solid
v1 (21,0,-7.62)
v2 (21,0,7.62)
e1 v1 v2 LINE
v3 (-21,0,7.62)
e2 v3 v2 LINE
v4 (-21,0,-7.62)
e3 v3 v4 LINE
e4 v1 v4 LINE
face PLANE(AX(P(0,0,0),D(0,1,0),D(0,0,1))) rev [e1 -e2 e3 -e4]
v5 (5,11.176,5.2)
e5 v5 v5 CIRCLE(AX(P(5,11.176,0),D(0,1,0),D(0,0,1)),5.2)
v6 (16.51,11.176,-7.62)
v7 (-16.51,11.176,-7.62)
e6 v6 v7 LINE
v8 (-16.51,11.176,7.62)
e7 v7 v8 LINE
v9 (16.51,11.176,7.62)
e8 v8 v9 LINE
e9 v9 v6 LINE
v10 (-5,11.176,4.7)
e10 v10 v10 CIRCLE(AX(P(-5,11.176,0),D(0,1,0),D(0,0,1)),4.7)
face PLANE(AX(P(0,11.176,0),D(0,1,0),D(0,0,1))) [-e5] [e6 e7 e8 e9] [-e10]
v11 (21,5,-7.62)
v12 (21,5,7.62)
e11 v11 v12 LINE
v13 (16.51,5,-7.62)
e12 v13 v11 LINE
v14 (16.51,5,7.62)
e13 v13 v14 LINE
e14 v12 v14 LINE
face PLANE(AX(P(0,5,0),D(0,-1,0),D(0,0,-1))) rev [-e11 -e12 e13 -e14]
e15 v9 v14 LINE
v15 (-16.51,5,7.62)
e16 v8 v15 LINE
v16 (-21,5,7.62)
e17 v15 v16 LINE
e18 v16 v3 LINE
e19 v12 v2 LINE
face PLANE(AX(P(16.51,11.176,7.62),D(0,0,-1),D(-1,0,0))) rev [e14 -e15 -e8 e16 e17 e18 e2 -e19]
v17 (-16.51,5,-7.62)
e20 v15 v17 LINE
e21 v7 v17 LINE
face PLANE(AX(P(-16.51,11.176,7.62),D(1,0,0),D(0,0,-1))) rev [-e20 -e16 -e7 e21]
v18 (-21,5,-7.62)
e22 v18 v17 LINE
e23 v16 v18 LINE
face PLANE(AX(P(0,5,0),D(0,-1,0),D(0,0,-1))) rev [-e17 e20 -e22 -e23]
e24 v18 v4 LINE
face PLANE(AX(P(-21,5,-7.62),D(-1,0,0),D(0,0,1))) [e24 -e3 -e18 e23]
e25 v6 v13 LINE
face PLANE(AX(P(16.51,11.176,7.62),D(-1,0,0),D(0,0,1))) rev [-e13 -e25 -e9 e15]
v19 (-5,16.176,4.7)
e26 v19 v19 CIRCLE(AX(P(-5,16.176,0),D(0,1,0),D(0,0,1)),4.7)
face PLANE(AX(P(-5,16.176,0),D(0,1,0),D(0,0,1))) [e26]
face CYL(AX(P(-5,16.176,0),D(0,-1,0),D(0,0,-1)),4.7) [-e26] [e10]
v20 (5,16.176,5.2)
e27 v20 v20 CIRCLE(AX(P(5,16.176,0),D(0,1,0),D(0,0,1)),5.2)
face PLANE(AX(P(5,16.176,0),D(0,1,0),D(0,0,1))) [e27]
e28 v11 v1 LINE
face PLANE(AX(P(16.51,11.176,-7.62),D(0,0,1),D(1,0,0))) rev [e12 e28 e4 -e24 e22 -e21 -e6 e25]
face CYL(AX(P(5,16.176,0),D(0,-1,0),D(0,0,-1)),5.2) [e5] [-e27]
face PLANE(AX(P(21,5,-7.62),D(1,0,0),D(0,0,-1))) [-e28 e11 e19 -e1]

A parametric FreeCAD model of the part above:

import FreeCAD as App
import Part
import Sketcher
from FreeCAD import Vector
Q = App.Units.Quantity


def add_polygon(sketch, points):
    """Adds a closed chain of lines whose ends are joined by coincident constraints."""
    first, n = sketch.GeometryCount, len(points)
    for a, b in zip(points, points[1:] + points[:1]):
        sketch.addGeometry(Part.LineSegment(App.Vector(*a, 0), App.Vector(*b, 0)), False)
    for i in range(n):
        sketch.addConstraint(Sketcher.Constraint("Coincident", first + i, 2, first + (i + 1) % n, 1))

doc = App.newDocument("Part")
params = doc.addObject("Spreadsheet::Sheet", "Params")
for row, (alias, value) in enumerate([
    ("sketch1_width", "33.02 mm"),
    ("sketch1_height", "15.24 mm"),
    ("pad1_length", "11.176 mm"),
    ("sketch2_diameter", "9.4 mm"),
    ("sketch2_diameter2", "10.4 mm"),
    ("pad2_length", "5 mm"),
    ("sketch3_width", "42 mm"),
    ("sketch3_height", "15.24 mm"),
    ("pad3_length", "5 mm"),
], start=1):
    params.set(f"A{row}", alias)
    params.set(f"B{row}", "=" + value)
    params.setAlias(f"B{row}", alias)

body = doc.addObject("PartDesign::Body", "Body")

sketch1 = body.newObject("Sketcher::SketchObject", "Sketch")
sketch1.AttachmentSupport = (doc.getObject("XZ_Plane"), [""])
sketch1.MapMode = "FlatFace"
add_polygon(sketch1, [(-16.51, -7.62), (-16.51, 7.62), (16.51, 7.62), (16.51, -7.62)])
sketch1.addConstraint([
    Sketcher.Constraint("Vertical", 0),
    Sketcher.Constraint("Horizontal", 1),
    Sketcher.Constraint("Vertical", 2),
    Sketcher.Constraint("Horizontal", 3),
    Sketcher.Constraint("Symmetric", 0, 2, 2, 2, -1, 1),
    Sketcher.Constraint("DistanceX", 1, 1, 1, 2, Q("33.02 mm")),
    Sketcher.Constraint("DistanceY", 0, 1, 0, 2, Q("15.24 mm")),
])
sketch1.setExpression("Constraints[9]", "Params.sketch1_width")
sketch1.setExpression("Constraints[10]", "Params.sketch1_height")
pad1 = body.newObject("PartDesign::Pad", "Pad")
pad1.Profile = sketch1
pad1.setExpression("Length", "Params.pad1_length")
pad1.Reversed = True

sketch2 = body.newObject("Sketcher::SketchObject", "Sketch001")
sketch2.AttachmentSupport = (doc.getObject("XZ_Plane"), [""])
sketch2.MapMode = "FlatFace"
sketch2.AttachmentOffset = App.Placement(Vector(0, 0, -11.176), App.Rotation())
sketch2.addGeometry([
    Part.Circle(Vector(-5, 0, 0), Vector(0, 0, 1), 4.7),
    Part.Circle(Vector(5, 0, 0), Vector(0, 0, 1), 5.2),
], False)
sketch2.addConstraint([
    Sketcher.Constraint("Symmetric", 0, 3, 1, 3, -1, 1),
    Sketcher.Constraint("PointOnObject", 0, 3, -1),
    Sketcher.Constraint("Diameter", 0, Q("9.4 mm")),
    Sketcher.Constraint("Diameter", 1, Q("10.4 mm")),
    Sketcher.Constraint("DistanceX", 0, 3, -1, 1, Q("5 mm")),
])
sketch2.setExpression("Constraints[2]", "Params.sketch2_diameter")
sketch2.setExpression("Constraints[3]", "Params.sketch2_diameter2")
pad2 = body.newObject("PartDesign::Pad", "Pad001")
pad2.Profile = sketch2
pad2.setExpression("Length", "Params.pad2_length")
pad2.Reversed = True

sketch3 = body.newObject("Sketcher::SketchObject", "Sketch002")
sketch3.AttachmentSupport = (doc.getObject("XZ_Plane"), [""])
sketch3.MapMode = "FlatFace"
add_polygon(sketch3, [(-21, 7.62), (-21, -7.62), (21, -7.62), (21, 7.62)])
sketch3.addConstraint([
    Sketcher.Constraint("Vertical", 0),
    Sketcher.Constraint("Horizontal", 1),
    Sketcher.Constraint("Vertical", 2),
    Sketcher.Constraint("Horizontal", 3),
    Sketcher.Constraint("Symmetric", 0, 2, 2, 2, -1, 1),
    Sketcher.Constraint("DistanceX", 1, 1, 1, 2, Q("42 mm")),
    Sketcher.Constraint("DistanceY", 0, 2, 0, 1, Q("15.24 mm")),
])
sketch3.setExpression("Constraints[9]", "Params.sketch3_width")
sketch3.setExpression("Constraints[10]", "Params.sketch3_height")
pad3 = body.newObject("PartDesign::Pad", "Pad002")
pad3.Profile = sketch3
pad3.setExpression("Length", "Params.pad3_length")
pad3.Reversed = True

doc.recompute()
